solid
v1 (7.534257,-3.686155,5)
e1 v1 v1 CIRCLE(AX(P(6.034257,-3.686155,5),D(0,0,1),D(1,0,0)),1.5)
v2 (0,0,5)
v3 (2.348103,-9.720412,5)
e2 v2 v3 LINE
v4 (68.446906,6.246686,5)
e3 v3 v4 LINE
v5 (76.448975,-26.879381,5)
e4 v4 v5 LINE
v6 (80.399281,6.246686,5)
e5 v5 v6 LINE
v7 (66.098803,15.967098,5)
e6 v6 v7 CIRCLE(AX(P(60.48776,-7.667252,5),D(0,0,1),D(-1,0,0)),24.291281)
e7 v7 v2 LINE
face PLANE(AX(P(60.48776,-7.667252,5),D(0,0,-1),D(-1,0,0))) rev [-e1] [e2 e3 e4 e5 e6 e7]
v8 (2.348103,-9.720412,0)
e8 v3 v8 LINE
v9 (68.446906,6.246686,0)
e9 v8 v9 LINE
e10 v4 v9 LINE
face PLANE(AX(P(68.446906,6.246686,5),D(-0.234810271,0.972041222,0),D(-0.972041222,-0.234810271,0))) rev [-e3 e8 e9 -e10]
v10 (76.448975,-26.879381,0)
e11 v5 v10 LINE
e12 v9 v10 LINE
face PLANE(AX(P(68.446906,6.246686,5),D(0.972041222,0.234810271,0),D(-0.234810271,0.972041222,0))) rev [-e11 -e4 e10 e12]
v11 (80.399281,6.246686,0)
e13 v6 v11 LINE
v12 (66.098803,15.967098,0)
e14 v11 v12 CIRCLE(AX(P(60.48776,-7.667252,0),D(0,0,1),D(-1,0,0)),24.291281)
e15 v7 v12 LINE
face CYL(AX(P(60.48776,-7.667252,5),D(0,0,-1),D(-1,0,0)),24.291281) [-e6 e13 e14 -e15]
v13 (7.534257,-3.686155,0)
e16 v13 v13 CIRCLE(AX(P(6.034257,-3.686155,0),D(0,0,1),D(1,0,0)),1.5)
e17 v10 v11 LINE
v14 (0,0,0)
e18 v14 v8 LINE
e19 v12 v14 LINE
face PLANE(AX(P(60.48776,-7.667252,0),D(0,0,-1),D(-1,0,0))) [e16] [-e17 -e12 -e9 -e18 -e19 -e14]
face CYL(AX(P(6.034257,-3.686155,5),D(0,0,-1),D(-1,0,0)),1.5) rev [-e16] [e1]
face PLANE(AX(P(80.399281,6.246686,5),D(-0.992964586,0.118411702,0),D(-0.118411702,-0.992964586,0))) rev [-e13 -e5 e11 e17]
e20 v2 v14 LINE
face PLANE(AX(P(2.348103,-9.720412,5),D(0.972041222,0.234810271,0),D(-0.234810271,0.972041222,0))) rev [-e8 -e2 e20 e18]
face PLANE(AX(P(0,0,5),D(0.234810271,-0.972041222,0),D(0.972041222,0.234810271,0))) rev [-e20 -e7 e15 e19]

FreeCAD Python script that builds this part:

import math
import FreeCAD as App
import Part
import Sketcher
Q = App.Units.Quantity

doc = App.newDocument("Part")
body = doc.addObject("PartDesign::Body", "Body")

# Sketch on XY plane
sketch1 = body.newObject("Sketcher::SketchObject", "Sketch")
sketch1.AttachmentSupport = (doc.getObject("XY_Plane"), [""])
sketch1.MapMode = "FlatFace"
sketch1.addGeometry([
    Part.LineSegment(App.Vector(76.4, -26.9, 0), App.Vector(80.4, 6.2, 0)),  # 0
    Part.ArcOfCircle(Part.Circle(App.Vector(60.5, -7.7, 0), App.Vector(0, 0, 1), 24.3), math.radians(35), math.radians(77)),  # 1
    Part.LineSegment(App.Vector(66.1, 16, 0), App.Vector(0, 0, 0)),  # 2
    Part.LineSegment(App.Vector(0, 0, 0), App.Vector(2.3, -9.7, 0)),  # 3
    Part.LineSegment(App.Vector(2.3, -9.7, 0), App.Vector(68.4, 6.2, 0)),  # 4
    Part.LineSegment(App.Vector(68.4, 6.2, 0), App.Vector(76.4, -26.9, 0)),  # 5
    Part.Circle(App.Vector(6, -3.7, 0), App.Vector(0, 0, 1), 1.5),  # 6
], False)
sketch1.addConstraint([
    Sketcher.Constraint("Coincident", 0, 2, 1, 1),
    Sketcher.Constraint("Coincident", 1, 2, 2, 1),
    Sketcher.Constraint("Coincident", 2, 2, 3, 1),
    Sketcher.Constraint("Coincident", 3, 2, 4, 1),
    Sketcher.Constraint("Coincident", 4, 2, 5, 1),
    Sketcher.Constraint("Coincident", 5, 2, 0, 1),
    Sketcher.Constraint("Coincident", 2, 2, -1, 1),
    Sketcher.Constraint("Perpendicular", 2, 3),
    Sketcher.Constraint("Perpendicular", 3, 4),
    Sketcher.Constraint("Perpendicular", 4, 5),
    Sketcher.Constraint("Horizontal", 0, 2, 4, 2),
    Sketcher.Constraint("Equal", 2, 4),
    Sketcher.Constraint("Diameter", 6, Q("3 mm")),
    Sketcher.Constraint("Distance", 2, Q("68 mm")),
    Sketcher.Constraint("Distance", 3, Q("10 mm")),
    Sketcher.Constraint("Radius", 1, Q("24.291281 mm")),
    Sketcher.Constraint("DistanceY", -1, 1, 1, 2, Q("15.967098 mm")),
    Sketcher.Constraint("Distance", 5, Q("34.07887 mm")),
    Sketcher.Constraint("DistanceX", -1, 1, 1, 3, Q("60.48776 mm")),
    Sketcher.Constraint("DistanceY", 6, 3, 0, 2, Q("9.932841 mm")),
    Sketcher.Constraint("DistanceX", 6, 3, 4, 2, Q("62.412648 mm")),
])
pad1 = body.newObject("PartDesign::Pad", "Pad")
pad1.Profile = sketch1
pad1.Length = 5

doc.recompute()
